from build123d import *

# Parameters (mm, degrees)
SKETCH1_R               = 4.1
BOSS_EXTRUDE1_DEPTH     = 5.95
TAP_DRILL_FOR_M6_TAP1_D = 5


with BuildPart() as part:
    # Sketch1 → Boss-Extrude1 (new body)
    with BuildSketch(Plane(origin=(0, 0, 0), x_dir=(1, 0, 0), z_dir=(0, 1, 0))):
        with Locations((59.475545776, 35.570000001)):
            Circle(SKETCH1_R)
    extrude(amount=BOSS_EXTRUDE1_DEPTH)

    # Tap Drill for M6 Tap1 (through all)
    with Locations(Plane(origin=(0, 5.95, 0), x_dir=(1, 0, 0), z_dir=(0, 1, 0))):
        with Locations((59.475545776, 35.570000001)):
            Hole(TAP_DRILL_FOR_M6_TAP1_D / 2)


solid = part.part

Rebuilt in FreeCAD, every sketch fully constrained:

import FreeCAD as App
import Part
import Sketcher
Q = App.Units.Quantity

doc = App.newDocument("Part")
body = doc.addObject("PartDesign::Body", "Body")

sketch1 = doc.addObject("Sketcher::SketchObject", "Sketch")
body.addObject(sketch1)
sketch1.AttachmentSupport = (doc.XZ_Plane, [""])
sketch1.MapMode = "FlatFace"
sketch1.addGeometry(Part.Circle(App.Vector(59.5, -35.6, 0), App.Vector(0, 0, 1), 4.1), False)
sketch1.addConstraint([
    Sketcher.Constraint("Diameter", 0, Q("8.2 mm")),
    Sketcher.Constraint("DistanceY", 0, 3, -1, 1, Q("35.57 mm")),
    Sketcher.Constraint("DistanceX", -1, 1, 0, 3, Q("59.475546 mm")),
])
pad1 = doc.addObject("PartDesign::Pad", "Pad")
body.addObject(pad1)
pad1.Profile = sketch1
pad1.Length = 5.95
pad1.Reversed = True

sketch2 = doc.addObject("Sketcher::SketchObject", "Sketch001")
body.addObject(sketch2)
sketch2.AttachmentSupport = (doc.XZ_Plane, [""])
sketch2.MapMode = "FlatFace"
sketch2.AttachmentOffset = App.Placement(App.Vector(0, 0, -5.95), App.Rotation())
sketch2.addGeometry(Part.Circle(App.Vector(59.5, -35.6, 0), App.Vector(0, 0, 1), 2.5), False)
sketch2.addConstraint([
    Sketcher.Constraint("Diameter", 0, Q("5 mm")),
    Sketcher.Constraint("DistanceY", 0, 3, -1, 1, Q("35.57 mm")),
    Sketcher.Constraint("DistanceX", -1, 1, 0, 3, Q("59.475546 mm")),
])
doc.recompute()
hole = doc.addObject("PartDesign::Hole", "Hole")
body.addObject(hole)
hole.Profile = sketch2
hole.ThreadType = "None"
hole.Diameter = 5
hole.DepthType = "ThroughAll"
hole.Reversed = True

doc.recompute()
